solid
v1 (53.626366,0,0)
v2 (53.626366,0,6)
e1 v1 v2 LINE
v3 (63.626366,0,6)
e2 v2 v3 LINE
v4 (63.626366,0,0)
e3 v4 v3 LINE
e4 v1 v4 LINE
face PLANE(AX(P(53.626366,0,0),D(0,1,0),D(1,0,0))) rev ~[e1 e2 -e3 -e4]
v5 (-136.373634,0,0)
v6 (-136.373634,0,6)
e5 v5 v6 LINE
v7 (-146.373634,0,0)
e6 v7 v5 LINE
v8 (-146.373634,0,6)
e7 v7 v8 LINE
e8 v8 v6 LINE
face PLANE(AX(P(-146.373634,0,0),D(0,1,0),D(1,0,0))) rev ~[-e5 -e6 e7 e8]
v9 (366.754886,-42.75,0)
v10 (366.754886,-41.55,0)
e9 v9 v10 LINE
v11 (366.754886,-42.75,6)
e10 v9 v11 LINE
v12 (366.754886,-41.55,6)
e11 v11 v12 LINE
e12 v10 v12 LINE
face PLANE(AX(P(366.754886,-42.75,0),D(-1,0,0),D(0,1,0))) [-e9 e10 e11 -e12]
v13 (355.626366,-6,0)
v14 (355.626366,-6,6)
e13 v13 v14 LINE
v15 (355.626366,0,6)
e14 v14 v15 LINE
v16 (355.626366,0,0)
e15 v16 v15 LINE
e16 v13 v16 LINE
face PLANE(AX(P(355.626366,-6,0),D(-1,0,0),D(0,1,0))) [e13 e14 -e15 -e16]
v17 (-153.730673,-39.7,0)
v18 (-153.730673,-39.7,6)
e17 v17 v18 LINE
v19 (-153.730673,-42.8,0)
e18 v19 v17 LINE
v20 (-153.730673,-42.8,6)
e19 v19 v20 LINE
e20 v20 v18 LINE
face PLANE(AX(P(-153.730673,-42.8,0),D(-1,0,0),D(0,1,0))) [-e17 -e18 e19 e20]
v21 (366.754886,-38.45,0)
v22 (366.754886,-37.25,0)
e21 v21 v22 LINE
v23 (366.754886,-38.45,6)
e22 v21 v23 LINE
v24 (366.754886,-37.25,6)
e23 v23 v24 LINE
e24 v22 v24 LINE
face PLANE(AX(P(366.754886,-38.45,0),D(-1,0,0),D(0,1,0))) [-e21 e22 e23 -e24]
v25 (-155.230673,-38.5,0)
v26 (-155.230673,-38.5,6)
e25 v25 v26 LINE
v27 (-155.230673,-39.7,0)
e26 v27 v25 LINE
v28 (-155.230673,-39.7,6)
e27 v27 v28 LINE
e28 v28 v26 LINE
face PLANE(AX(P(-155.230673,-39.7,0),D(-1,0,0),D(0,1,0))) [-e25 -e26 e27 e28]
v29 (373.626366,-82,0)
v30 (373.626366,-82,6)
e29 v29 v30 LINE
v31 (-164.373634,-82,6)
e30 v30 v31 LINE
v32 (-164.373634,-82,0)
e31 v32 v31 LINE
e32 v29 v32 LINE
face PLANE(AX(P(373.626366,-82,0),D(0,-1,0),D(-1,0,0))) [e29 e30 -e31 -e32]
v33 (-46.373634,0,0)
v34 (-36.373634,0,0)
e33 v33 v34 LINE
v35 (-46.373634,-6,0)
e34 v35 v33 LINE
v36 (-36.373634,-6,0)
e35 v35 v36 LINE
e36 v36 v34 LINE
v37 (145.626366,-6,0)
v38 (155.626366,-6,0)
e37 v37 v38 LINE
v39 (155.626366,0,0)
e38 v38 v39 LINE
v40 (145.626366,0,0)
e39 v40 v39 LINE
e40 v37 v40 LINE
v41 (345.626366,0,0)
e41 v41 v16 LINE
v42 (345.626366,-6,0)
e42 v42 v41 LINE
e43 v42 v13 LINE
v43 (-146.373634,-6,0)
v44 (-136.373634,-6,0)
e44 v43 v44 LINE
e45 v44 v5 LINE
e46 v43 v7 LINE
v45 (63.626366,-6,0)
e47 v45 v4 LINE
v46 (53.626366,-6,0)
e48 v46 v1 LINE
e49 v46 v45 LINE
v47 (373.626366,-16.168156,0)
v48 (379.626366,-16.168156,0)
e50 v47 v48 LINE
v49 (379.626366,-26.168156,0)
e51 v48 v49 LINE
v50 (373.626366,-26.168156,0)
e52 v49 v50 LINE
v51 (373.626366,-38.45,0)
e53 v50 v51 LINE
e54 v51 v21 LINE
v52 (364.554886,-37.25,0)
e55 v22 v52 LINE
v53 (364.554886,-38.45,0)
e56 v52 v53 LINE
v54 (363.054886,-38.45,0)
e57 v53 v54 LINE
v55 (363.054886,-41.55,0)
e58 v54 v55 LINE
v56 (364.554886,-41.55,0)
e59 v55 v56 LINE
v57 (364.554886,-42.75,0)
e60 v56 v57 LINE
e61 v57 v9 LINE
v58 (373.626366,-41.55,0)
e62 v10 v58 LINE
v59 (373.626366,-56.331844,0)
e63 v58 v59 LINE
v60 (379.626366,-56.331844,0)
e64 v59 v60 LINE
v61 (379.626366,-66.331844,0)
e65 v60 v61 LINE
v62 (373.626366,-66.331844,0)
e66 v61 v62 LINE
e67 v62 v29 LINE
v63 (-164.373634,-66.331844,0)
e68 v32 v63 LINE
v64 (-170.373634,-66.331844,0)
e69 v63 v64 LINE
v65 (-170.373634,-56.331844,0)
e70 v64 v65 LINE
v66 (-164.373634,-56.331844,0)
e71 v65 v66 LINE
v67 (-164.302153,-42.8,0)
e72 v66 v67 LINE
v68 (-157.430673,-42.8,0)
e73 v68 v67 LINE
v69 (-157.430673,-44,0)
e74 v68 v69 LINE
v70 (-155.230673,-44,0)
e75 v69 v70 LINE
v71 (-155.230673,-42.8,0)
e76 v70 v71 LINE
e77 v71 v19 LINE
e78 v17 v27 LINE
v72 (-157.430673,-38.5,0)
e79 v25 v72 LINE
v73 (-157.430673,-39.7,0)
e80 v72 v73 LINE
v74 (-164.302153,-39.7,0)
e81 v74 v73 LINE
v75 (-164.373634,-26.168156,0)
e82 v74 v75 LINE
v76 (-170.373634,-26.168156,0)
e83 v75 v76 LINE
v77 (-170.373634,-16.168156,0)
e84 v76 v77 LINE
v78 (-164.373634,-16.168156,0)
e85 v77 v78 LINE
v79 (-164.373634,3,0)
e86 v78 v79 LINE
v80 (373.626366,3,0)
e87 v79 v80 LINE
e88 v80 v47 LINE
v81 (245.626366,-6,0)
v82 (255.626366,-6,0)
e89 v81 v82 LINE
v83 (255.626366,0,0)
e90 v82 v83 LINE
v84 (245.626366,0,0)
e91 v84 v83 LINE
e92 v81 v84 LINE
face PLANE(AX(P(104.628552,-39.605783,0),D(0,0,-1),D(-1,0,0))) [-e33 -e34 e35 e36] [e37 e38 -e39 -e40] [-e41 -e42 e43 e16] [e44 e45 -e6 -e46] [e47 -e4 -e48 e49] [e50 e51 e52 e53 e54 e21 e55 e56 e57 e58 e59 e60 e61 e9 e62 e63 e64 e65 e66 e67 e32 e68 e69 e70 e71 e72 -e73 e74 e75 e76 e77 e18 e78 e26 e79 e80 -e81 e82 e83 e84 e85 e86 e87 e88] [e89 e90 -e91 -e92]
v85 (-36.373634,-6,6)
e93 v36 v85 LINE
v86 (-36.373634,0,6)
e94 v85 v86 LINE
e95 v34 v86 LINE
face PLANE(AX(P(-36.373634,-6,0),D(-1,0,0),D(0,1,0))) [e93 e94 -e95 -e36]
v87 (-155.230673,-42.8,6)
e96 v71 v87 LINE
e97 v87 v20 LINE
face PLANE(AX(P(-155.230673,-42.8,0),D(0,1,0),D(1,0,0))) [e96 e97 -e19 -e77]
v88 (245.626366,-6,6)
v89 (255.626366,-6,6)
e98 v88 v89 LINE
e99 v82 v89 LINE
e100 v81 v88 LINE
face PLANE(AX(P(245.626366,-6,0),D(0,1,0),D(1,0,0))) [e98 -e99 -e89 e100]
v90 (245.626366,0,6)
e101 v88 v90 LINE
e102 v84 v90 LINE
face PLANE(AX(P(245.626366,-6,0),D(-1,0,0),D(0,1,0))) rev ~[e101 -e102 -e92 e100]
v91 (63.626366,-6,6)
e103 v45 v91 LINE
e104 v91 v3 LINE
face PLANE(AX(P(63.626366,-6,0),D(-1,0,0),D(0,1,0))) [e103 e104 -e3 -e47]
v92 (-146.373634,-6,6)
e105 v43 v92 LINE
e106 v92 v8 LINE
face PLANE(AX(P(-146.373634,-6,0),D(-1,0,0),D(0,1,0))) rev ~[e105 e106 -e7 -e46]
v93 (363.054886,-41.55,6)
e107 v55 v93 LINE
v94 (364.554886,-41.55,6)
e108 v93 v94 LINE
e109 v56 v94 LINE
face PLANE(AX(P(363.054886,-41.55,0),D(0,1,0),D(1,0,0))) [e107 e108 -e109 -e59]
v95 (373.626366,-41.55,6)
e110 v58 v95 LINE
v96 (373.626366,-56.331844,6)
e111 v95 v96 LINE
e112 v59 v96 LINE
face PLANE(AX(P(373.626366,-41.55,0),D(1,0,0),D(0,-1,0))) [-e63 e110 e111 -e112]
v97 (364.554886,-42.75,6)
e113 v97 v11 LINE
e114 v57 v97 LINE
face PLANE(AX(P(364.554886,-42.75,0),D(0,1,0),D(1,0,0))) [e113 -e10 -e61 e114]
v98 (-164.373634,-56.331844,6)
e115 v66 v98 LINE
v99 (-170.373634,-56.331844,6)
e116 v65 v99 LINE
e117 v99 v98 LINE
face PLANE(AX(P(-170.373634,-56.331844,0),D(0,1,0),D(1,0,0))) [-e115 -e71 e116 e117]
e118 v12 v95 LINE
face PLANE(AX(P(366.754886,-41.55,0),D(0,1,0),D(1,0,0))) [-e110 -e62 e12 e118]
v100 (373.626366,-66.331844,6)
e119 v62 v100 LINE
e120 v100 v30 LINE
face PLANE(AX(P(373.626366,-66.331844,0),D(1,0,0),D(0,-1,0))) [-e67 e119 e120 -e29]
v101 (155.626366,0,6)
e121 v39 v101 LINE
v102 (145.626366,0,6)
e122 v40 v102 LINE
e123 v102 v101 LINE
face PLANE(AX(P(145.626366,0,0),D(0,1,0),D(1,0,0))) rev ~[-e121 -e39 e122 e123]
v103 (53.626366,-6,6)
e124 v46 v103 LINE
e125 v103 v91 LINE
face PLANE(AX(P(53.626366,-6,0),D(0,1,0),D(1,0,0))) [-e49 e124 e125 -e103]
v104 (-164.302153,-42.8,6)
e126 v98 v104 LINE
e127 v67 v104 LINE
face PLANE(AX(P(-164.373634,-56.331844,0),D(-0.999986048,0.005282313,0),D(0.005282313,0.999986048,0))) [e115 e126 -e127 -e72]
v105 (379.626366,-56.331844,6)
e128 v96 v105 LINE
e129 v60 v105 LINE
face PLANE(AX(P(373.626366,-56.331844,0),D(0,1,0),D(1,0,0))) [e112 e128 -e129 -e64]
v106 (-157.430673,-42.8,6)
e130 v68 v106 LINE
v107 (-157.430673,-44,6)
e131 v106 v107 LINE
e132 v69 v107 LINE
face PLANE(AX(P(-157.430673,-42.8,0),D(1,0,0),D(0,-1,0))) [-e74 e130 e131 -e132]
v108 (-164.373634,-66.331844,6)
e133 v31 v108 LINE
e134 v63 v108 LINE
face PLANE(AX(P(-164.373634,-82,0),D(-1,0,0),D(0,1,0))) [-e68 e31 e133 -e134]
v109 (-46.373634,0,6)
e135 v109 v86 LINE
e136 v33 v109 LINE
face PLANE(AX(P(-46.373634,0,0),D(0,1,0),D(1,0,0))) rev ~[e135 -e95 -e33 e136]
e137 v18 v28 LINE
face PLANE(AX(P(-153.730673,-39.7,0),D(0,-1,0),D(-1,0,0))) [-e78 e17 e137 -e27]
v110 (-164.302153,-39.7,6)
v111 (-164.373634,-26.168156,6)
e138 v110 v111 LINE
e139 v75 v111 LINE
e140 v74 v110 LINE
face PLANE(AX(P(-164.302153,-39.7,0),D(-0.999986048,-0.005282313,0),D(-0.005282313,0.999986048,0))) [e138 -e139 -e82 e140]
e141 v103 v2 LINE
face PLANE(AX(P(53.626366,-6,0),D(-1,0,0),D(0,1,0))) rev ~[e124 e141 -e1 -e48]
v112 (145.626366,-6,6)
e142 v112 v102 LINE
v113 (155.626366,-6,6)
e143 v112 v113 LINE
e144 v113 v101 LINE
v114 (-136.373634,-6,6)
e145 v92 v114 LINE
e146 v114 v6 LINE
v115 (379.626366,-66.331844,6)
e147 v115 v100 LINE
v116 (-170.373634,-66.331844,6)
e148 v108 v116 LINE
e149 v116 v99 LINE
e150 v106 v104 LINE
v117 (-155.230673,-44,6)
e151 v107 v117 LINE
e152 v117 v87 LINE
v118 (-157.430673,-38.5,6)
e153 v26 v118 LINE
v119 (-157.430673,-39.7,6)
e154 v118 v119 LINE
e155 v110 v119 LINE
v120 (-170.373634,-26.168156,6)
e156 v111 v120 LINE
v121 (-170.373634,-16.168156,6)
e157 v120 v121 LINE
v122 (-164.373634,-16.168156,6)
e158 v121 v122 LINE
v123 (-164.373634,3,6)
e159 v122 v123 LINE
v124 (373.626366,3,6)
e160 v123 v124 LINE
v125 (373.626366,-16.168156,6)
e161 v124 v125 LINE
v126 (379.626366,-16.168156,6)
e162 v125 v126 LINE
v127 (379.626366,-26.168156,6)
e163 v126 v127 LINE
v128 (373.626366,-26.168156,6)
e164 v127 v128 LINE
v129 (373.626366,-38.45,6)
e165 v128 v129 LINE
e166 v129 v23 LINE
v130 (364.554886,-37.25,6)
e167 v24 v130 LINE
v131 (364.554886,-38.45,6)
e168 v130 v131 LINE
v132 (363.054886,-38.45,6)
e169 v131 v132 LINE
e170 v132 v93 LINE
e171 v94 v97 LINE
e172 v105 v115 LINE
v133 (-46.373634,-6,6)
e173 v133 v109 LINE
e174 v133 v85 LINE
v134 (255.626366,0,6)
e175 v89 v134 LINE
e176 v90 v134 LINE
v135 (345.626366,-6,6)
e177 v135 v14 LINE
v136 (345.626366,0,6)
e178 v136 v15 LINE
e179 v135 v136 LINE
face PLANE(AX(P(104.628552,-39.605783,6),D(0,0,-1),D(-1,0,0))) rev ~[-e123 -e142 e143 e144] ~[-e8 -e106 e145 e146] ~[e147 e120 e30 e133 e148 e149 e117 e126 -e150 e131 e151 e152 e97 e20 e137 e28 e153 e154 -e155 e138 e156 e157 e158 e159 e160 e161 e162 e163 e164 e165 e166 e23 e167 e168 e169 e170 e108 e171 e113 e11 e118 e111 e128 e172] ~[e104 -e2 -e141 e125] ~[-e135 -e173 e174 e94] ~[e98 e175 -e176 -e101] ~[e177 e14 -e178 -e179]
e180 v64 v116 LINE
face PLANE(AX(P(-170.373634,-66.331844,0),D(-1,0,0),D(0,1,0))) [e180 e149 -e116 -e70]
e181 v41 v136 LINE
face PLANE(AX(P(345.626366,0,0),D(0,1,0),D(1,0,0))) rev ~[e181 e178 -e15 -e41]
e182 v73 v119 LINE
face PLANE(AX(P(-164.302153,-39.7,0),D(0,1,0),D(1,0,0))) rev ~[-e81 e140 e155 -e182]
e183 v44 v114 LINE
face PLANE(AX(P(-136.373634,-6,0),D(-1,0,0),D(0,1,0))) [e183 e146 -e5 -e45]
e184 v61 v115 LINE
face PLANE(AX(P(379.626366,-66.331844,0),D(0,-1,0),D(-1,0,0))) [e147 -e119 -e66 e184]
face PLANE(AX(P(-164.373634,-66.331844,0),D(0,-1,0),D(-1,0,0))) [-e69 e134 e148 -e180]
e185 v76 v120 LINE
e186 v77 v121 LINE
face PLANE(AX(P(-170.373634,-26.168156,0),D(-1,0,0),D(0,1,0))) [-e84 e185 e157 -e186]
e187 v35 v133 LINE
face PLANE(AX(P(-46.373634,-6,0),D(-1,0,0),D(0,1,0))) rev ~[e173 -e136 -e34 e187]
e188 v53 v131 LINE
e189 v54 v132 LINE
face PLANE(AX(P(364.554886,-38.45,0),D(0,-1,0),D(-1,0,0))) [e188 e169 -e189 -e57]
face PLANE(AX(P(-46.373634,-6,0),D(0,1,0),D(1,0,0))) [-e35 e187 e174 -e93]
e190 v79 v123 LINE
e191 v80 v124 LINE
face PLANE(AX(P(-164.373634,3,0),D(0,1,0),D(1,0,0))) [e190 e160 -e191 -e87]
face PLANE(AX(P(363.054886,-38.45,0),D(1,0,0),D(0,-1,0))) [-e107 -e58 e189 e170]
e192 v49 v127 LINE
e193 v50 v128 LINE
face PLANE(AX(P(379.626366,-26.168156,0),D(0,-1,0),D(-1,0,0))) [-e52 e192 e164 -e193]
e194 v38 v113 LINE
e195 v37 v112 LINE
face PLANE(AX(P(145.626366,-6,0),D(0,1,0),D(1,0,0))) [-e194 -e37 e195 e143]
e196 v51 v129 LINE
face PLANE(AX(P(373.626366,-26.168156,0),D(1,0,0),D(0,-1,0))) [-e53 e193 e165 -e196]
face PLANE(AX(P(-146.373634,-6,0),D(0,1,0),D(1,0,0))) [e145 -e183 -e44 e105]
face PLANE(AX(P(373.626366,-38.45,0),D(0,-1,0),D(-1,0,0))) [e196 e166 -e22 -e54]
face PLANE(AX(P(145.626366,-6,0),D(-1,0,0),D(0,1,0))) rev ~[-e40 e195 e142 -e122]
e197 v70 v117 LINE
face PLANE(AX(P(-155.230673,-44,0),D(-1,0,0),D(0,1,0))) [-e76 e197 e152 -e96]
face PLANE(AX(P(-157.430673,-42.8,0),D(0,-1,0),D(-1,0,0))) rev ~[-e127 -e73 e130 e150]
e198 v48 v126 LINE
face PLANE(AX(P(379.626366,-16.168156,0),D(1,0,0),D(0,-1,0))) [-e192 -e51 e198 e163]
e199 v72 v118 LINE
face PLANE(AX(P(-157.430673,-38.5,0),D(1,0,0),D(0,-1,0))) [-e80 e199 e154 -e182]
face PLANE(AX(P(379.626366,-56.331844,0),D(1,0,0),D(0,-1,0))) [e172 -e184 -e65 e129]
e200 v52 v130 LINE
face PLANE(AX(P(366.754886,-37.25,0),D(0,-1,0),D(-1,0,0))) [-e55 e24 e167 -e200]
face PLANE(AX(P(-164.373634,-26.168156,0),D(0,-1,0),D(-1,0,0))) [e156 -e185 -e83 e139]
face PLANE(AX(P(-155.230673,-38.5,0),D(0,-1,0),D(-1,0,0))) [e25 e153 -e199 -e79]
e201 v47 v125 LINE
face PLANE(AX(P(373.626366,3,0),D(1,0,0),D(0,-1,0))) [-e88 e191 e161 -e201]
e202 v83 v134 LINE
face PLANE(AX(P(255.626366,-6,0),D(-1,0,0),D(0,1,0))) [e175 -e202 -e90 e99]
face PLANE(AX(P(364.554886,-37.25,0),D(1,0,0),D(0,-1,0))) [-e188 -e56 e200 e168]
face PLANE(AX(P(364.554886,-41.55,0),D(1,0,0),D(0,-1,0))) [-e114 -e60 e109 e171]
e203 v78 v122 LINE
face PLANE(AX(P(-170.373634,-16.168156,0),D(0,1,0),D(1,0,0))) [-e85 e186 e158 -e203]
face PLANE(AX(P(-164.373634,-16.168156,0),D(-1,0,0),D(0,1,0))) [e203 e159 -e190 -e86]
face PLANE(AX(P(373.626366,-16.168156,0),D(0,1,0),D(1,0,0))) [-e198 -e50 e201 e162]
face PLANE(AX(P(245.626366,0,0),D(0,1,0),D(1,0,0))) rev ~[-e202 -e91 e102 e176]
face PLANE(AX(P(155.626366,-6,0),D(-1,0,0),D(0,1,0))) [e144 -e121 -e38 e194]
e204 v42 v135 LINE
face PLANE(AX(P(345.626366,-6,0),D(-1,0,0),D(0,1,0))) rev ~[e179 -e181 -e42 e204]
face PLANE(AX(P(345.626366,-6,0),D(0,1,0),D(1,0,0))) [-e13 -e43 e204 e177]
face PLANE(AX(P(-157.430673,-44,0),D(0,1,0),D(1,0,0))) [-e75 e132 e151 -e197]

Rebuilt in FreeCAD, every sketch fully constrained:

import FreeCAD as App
import Part
import Sketcher

V = App.Vector


def add_polygon(sketch, points):
    """Adds a closed chain of lines whose ends are joined by coincident constraints."""
    first, n = sketch.GeometryCount, len(points)
    for a, b in zip(points, points[1:] + points[:1]):
        sketch.addGeometry(Part.LineSegment(App.Vector(*a, 0), App.Vector(*b, 0)), False)
    for i in range(n):
        sketch.addConstraint(Sketcher.Constraint("Coincident", first + i, 2, first + (i + 1) % n, 1))

doc = App.newDocument("Part")
params = doc.addObject("Spreadsheet::Sheet", "Params")
for row, (alias, value) in enumerate([
    ("sketch1_width", "538 mm"),
    ("sketch1_width2", "6 mm"),
    ("sketch1_width3", "10 mm"),
    ("sketch1_width4", "2.2 mm"),
    ("sketch1_width5", "1.5 mm"),
    ("pad1_length", "6 mm"),
], start=1):
    params.set(f"A{row}", alias)
    params.set(f"B{row}", "=" + value)
    params.setAlias(f"B{row}", alias)

body = doc.addObject("PartDesign::Body", "Body")

# Sketch on XY plane
sketch1 = doc.addObject("Sketcher::SketchObject", "Sketch")
body.addObject(sketch1)
sketch1.AttachmentSupport = (doc.XY_Plane, [""])
sketch1.MapMode = "FlatFace"
add_polygon(sketch1, [(373.626366, 3), (-164.373634, 3), (-164.373634, -16.168156), (-170.373634, -16.168156), (-170.373634, -26.168156), (-164.373634, -26.168156), (-164.302153, -39.7), (-157.430673, -39.7), (-157.430673, -38.5), (-155.230673, -38.5), (-155.230673, -39.7), (-153.730673, -39.7), (-153.730673, -42.8), (-155.230673, -42.8), (-155.230673, -44), (-157.430673, -44), (-157.430673, -42.8), (-164.302153, -42.8), (-164.373634, -56.331844), (-170.373634, -56.331844), (-170.373634, -66.331844), (-164.373634, -66.331844), (-164.373634, -82), (373.626366, -82), (373.626366, -66.331844), (379.626366, -66.331844), (379.626366, -56.331844), (373.626366, -56.331844), (373.626366, -41.55), (366.754886, -41.55), (366.754886, -42.75), (364.554886, -42.75), (364.554886, -41.55), (363.054886, -41.55), (363.054886, -38.45), (364.554886, -38.45), (364.554886, -37.25), (366.754886, -37.25), (366.754886, -38.45), (373.626366, -38.45), (373.626366, -26.168156), (379.626366, -26.168156), (379.626366, -16.168156), (373.626366, -16.168156)])  # lines 0-43
add_polygon(sketch1, [(345.626366, -6), (345.626366, 0), (355.626366, 0), (355.626366, -6)])  # lines 44-47
add_polygon(sketch1, [(245.626366, -6), (245.626366, 0), (255.626366, 0), (255.626366, -6)])  # lines 48-51
add_polygon(sketch1, [(145.626366, -6), (145.626366, 0), (155.626366, 0), (155.626366, -6)])  # lines 52-55
add_polygon(sketch1, [(53.626366, -6), (53.626366, 0), (63.626366, 0), (63.626366, -6)])  # lines 56-59
add_polygon(sketch1, [(-46.373634, -6), (-46.373634, 0), (-36.373634, 0), (-36.373634, -6)])  # lines 60-63
add_polygon(sketch1, [(-146.373634, -6), (-146.373634, 0), (-136.373634, 0), (-136.373634, -6)])  # lines 64-67
sketch1.addConstraint([
    Sketcher.Constraint("Horizontal", 0),
    Sketcher.Constraint("Vertical", 1),
    Sketcher.Constraint("Horizontal", 2),
    Sketcher.Constraint("Vertical", 3),
    Sketcher.Constraint("Horizontal", 4),
    Sketcher.Constraint("Horizontal", 6),
    Sketcher.Constraint("Vertical", 7),
    Sketcher.Constraint("Horizontal", 8),
    Sketcher.Constraint("Vertical", 9),
    Sketcher.Constraint("Horizontal", 10),
    Sketcher.Constraint("Vertical", 11),
    Sketcher.Constraint("Horizontal", 12),
    Sketcher.Constraint("Vertical", 13),
    Sketcher.Constraint("Horizontal", 14),
    Sketcher.Constraint("Vertical", 15),
    Sketcher.Constraint("Horizontal", 16),
    Sketcher.Constraint("Horizontal", 18),
    Sketcher.Constraint("Vertical", 19),
    Sketcher.Constraint("Horizontal", 20),
    Sketcher.Constraint("Vertical", 21),
    Sketcher.Constraint("Horizontal", 22),
    Sketcher.Constraint("Vertical", 23),
    Sketcher.Constraint("Horizontal", 24),
    Sketcher.Constraint("Vertical", 25),
    Sketcher.Constraint("Horizontal", 26),
    Sketcher.Constraint("Vertical", 27),
    Sketcher.Constraint("Horizontal", 28),
    Sketcher.Constraint("Vertical", 29),
    Sketcher.Constraint("Horizontal", 30),
    Sketcher.Constraint("Vertical", 31),
    Sketcher.Constraint("Horizontal", 32),
    Sketcher.Constraint("Vertical", 33),
    Sketcher.Constraint("Horizontal", 34),
    Sketcher.Constraint("Vertical", 35),
    Sketcher.Constraint("Horizontal", 36),
    Sketcher.Constraint("Vertical", 37),
    Sketcher.Constraint("Horizontal", 38),
    Sketcher.Constraint("Vertical", 39),
    Sketcher.Constraint("Horizontal", 40),
    Sketcher.Constraint("Vertical", 41),
    Sketcher.Constraint("Horizontal", 42),
    Sketcher.Constraint("Vertical", 43),
    Sketcher.Constraint("Vertical", 44),
    Sketcher.Constraint("Horizontal", 45),
    Sketcher.Constraint("Vertical", 46),
    Sketcher.Constraint("Horizontal", 47),
    Sketcher.Constraint("Vertical", 48),
    Sketcher.Constraint("Horizontal", 49),
    Sketcher.Constraint("Vertical", 50),
    Sketcher.Constraint("Horizontal", 51),
    Sketcher.Constraint("Vertical", 52),
    Sketcher.Constraint("Horizontal", 53),
    Sketcher.Constraint("Vertical", 54),
    Sketcher.Constraint("Horizontal", 55),
    Sketcher.Constraint("Vertical", 56),
    Sketcher.Constraint("Horizontal", 57),
    Sketcher.Constraint("Vertical", 58),
    Sketcher.Constraint("Horizontal", 59),
    Sketcher.Constraint("Vertical", 60),
    Sketcher.Constraint("Horizontal", 61),
    Sketcher.Constraint("Vertical", 62),
    Sketcher.Constraint("Horizontal", 63),
    Sketcher.Constraint("Vertical", 64),
    Sketcher.Constraint("Horizontal", 65),
    Sketcher.Constraint("Vertical", 66),
    Sketcher.Constraint("Horizontal", 67),
    Sketcher.Constraint("PointOnObject", 44, 2, -1),
    Sketcher.Constraint("PointOnObject", 48, 2, -1),
    Sketcher.Constraint("PointOnObject", 52, 2, -1),
    Sketcher.Constraint("PointOnObject", 56, 2, -1),
    Sketcher.Constraint("PointOnObject", 60, 2, -1),
    Sketcher.Constraint("PointOnObject", 64, 2, -1),
    Sketcher.Constraint("Horizontal", 6, 2, 9, 2),
    Sketcher.Constraint("Horizontal", 12, 2, 15, 2),
    Sketcher.Constraint("Horizontal", 20, 2, 23, 2),
    Sketcher.Constraint("Horizontal", 18, 2, 25, 2),
    Sketcher.Constraint("Horizontal", 28, 2, 31, 2),
    Sketcher.Constraint("Horizontal", 34, 2, 37, 2),
    Sketcher.Constraint("Horizontal", 4, 2, 39, 2),
    Sketcher.Constraint("Horizontal", 2, 2, 41, 2),
    Sketcher.Constraint("Horizontal", 47, 2, 50, 2),
    Sketcher.Constraint("Horizontal", 51, 2, 54, 2),
    Sketcher.Constraint("Horizontal", 55, 2, 58, 2),
    Sketcher.Constraint("Horizontal", 59, 2, 62, 2),
    Sketcher.Constraint("Horizontal", 63, 2, 66, 2),
    Sketcher.Constraint("Vertical", 1, 2, 4, 2),
    Sketcher.Constraint("Vertical", 9, 2, 12, 2),
    Sketcher.Constraint("Vertical", 7, 2, 14, 2),
    Sketcher.Constraint("Vertical", 5, 2, 16, 2),
    Sketcher.Constraint("Vertical", 4, 2, 17, 2),
    Sketcher.Constraint("Vertical", 3, 2, 18, 2),
    Sketcher.Constraint("Vertical", 17, 2, 20, 2),
    Sketcher.Constraint("Vertical", 23, 2, 26, 2),
    Sketcher.Constraint("Vertical", 31, 2, 34, 2),
    Sketcher.Constraint("Vertical", 29, 2, 36, 2),
    Sketcher.Constraint("Vertical", 27, 2, 38, 2),
    Sketcher.Constraint("Vertical", 25, 2, 40, 2),
    Sketcher.Constraint("Vertical", 39, 2, 42, 2),
    Sketcher.Constraint("Equal", 20, 24),
    Sketcher.Constraint("Equal", 16, 28),
    Sketcher.Constraint("Equal", 14, 30),
    Sketcher.Constraint("Equal", 12, 32),
    Sketcher.Constraint("Equal", 47, 49),
    Sketcher.Constraint("Equal", 51, 53),
    Sketcher.Constraint("Equal", 55, 57),
    Sketcher.Constraint("Equal", 59, 61),
    Sketcher.Constraint("Equal", 63, 65),
    Sketcher.Constraint("Equal", 67, 3),
    Sketcher.Constraint("Equal", 9, 13),
    Sketcher.Constraint("Equal", 3, 19),
    Sketcher.Constraint("Equal", 15, 29),
    Sketcher.Constraint("Equal", 11, 33),
    Sketcher.Constraint("Equal", 31, 35),
    Sketcher.Constraint("Equal", 42, 44),
    Sketcher.Constraint("Equal", 5, 17),
    Sketcher.Constraint("DistanceX", 0, 2, 0, 1, 538.0),
    Sketcher.Constraint("DistanceX", 2, 2, 2, 1, 6.0),
    Sketcher.Constraint("DistanceX", 45, 1, 45, 2, 10.0),
    Sketcher.Constraint("DistanceX", 8, 1, 8, 2, 2.2),
    Sketcher.Constraint("DistanceX", 10, 1, 10, 2, 1.5),
    Sketcher.Constraint("DistanceY", 7, 1, 7, 2, 1.2),
    Sketcher.Constraint("DistanceY", 11, 2, 11, 1, 3.1),
    Sketcher.Constraint("DistanceY", -1, 1, 0, 2, 3.0),
    Sketcher.Constraint("DistanceY", 13, 2, -1, 1, 44.0),
    Sketcher.Constraint("DistanceY", 21, 2, -1, 1, 82.0),
    Sketcher.Constraint("DistanceY", 27, 2, -1, 1, 41.55),
    Sketcher.Constraint("DistanceX", 6, 1, 6, 2, 6.87148),
    Sketcher.Constraint("DistanceY", 1, 2, 1, 1, 19.168156),
    Sketcher.Constraint("DistanceX", 0, 2, -1, 1, 164.373634),
    Sketcher.Constraint("DistanceX", 5, 2, -1, 1, 164.302153),
    Sketcher.Constraint("DistanceX", -1, 1, 44, 2, 345.626366),
    Sketcher.Constraint("DistanceX", -1, 1, 48, 2, 245.626366),
    Sketcher.Constraint("DistanceX", -1, 1, 52, 2, 145.626366),
    Sketcher.Constraint("DistanceX", -1, 1, 56, 2, 53.626366),
    Sketcher.Constraint("DistanceX", 60, 2, -1, 1, 46.373634),
    Sketcher.Constraint("DistanceX", 64, 2, -1, 1, 146.373634),
])
sketch1.setExpression("Constraints[183]", "Params.sketch1_width")
sketch1.setExpression("Constraints[184]", "Params.sketch1_width2")
sketch1.setExpression("Constraints[185]", "Params.sketch1_width3")
sketch1.setExpression("Constraints[186]", "Params.sketch1_width4")
sketch1.setExpression("Constraints[187]", "Params.sketch1_width5")
pad1 = doc.addObject("PartDesign::Pad", "Pad")
body.addObject(pad1)
pad1.Profile = sketch1
pad1.setExpression("Length", "Params.pad1_length")

doc.recompute()
